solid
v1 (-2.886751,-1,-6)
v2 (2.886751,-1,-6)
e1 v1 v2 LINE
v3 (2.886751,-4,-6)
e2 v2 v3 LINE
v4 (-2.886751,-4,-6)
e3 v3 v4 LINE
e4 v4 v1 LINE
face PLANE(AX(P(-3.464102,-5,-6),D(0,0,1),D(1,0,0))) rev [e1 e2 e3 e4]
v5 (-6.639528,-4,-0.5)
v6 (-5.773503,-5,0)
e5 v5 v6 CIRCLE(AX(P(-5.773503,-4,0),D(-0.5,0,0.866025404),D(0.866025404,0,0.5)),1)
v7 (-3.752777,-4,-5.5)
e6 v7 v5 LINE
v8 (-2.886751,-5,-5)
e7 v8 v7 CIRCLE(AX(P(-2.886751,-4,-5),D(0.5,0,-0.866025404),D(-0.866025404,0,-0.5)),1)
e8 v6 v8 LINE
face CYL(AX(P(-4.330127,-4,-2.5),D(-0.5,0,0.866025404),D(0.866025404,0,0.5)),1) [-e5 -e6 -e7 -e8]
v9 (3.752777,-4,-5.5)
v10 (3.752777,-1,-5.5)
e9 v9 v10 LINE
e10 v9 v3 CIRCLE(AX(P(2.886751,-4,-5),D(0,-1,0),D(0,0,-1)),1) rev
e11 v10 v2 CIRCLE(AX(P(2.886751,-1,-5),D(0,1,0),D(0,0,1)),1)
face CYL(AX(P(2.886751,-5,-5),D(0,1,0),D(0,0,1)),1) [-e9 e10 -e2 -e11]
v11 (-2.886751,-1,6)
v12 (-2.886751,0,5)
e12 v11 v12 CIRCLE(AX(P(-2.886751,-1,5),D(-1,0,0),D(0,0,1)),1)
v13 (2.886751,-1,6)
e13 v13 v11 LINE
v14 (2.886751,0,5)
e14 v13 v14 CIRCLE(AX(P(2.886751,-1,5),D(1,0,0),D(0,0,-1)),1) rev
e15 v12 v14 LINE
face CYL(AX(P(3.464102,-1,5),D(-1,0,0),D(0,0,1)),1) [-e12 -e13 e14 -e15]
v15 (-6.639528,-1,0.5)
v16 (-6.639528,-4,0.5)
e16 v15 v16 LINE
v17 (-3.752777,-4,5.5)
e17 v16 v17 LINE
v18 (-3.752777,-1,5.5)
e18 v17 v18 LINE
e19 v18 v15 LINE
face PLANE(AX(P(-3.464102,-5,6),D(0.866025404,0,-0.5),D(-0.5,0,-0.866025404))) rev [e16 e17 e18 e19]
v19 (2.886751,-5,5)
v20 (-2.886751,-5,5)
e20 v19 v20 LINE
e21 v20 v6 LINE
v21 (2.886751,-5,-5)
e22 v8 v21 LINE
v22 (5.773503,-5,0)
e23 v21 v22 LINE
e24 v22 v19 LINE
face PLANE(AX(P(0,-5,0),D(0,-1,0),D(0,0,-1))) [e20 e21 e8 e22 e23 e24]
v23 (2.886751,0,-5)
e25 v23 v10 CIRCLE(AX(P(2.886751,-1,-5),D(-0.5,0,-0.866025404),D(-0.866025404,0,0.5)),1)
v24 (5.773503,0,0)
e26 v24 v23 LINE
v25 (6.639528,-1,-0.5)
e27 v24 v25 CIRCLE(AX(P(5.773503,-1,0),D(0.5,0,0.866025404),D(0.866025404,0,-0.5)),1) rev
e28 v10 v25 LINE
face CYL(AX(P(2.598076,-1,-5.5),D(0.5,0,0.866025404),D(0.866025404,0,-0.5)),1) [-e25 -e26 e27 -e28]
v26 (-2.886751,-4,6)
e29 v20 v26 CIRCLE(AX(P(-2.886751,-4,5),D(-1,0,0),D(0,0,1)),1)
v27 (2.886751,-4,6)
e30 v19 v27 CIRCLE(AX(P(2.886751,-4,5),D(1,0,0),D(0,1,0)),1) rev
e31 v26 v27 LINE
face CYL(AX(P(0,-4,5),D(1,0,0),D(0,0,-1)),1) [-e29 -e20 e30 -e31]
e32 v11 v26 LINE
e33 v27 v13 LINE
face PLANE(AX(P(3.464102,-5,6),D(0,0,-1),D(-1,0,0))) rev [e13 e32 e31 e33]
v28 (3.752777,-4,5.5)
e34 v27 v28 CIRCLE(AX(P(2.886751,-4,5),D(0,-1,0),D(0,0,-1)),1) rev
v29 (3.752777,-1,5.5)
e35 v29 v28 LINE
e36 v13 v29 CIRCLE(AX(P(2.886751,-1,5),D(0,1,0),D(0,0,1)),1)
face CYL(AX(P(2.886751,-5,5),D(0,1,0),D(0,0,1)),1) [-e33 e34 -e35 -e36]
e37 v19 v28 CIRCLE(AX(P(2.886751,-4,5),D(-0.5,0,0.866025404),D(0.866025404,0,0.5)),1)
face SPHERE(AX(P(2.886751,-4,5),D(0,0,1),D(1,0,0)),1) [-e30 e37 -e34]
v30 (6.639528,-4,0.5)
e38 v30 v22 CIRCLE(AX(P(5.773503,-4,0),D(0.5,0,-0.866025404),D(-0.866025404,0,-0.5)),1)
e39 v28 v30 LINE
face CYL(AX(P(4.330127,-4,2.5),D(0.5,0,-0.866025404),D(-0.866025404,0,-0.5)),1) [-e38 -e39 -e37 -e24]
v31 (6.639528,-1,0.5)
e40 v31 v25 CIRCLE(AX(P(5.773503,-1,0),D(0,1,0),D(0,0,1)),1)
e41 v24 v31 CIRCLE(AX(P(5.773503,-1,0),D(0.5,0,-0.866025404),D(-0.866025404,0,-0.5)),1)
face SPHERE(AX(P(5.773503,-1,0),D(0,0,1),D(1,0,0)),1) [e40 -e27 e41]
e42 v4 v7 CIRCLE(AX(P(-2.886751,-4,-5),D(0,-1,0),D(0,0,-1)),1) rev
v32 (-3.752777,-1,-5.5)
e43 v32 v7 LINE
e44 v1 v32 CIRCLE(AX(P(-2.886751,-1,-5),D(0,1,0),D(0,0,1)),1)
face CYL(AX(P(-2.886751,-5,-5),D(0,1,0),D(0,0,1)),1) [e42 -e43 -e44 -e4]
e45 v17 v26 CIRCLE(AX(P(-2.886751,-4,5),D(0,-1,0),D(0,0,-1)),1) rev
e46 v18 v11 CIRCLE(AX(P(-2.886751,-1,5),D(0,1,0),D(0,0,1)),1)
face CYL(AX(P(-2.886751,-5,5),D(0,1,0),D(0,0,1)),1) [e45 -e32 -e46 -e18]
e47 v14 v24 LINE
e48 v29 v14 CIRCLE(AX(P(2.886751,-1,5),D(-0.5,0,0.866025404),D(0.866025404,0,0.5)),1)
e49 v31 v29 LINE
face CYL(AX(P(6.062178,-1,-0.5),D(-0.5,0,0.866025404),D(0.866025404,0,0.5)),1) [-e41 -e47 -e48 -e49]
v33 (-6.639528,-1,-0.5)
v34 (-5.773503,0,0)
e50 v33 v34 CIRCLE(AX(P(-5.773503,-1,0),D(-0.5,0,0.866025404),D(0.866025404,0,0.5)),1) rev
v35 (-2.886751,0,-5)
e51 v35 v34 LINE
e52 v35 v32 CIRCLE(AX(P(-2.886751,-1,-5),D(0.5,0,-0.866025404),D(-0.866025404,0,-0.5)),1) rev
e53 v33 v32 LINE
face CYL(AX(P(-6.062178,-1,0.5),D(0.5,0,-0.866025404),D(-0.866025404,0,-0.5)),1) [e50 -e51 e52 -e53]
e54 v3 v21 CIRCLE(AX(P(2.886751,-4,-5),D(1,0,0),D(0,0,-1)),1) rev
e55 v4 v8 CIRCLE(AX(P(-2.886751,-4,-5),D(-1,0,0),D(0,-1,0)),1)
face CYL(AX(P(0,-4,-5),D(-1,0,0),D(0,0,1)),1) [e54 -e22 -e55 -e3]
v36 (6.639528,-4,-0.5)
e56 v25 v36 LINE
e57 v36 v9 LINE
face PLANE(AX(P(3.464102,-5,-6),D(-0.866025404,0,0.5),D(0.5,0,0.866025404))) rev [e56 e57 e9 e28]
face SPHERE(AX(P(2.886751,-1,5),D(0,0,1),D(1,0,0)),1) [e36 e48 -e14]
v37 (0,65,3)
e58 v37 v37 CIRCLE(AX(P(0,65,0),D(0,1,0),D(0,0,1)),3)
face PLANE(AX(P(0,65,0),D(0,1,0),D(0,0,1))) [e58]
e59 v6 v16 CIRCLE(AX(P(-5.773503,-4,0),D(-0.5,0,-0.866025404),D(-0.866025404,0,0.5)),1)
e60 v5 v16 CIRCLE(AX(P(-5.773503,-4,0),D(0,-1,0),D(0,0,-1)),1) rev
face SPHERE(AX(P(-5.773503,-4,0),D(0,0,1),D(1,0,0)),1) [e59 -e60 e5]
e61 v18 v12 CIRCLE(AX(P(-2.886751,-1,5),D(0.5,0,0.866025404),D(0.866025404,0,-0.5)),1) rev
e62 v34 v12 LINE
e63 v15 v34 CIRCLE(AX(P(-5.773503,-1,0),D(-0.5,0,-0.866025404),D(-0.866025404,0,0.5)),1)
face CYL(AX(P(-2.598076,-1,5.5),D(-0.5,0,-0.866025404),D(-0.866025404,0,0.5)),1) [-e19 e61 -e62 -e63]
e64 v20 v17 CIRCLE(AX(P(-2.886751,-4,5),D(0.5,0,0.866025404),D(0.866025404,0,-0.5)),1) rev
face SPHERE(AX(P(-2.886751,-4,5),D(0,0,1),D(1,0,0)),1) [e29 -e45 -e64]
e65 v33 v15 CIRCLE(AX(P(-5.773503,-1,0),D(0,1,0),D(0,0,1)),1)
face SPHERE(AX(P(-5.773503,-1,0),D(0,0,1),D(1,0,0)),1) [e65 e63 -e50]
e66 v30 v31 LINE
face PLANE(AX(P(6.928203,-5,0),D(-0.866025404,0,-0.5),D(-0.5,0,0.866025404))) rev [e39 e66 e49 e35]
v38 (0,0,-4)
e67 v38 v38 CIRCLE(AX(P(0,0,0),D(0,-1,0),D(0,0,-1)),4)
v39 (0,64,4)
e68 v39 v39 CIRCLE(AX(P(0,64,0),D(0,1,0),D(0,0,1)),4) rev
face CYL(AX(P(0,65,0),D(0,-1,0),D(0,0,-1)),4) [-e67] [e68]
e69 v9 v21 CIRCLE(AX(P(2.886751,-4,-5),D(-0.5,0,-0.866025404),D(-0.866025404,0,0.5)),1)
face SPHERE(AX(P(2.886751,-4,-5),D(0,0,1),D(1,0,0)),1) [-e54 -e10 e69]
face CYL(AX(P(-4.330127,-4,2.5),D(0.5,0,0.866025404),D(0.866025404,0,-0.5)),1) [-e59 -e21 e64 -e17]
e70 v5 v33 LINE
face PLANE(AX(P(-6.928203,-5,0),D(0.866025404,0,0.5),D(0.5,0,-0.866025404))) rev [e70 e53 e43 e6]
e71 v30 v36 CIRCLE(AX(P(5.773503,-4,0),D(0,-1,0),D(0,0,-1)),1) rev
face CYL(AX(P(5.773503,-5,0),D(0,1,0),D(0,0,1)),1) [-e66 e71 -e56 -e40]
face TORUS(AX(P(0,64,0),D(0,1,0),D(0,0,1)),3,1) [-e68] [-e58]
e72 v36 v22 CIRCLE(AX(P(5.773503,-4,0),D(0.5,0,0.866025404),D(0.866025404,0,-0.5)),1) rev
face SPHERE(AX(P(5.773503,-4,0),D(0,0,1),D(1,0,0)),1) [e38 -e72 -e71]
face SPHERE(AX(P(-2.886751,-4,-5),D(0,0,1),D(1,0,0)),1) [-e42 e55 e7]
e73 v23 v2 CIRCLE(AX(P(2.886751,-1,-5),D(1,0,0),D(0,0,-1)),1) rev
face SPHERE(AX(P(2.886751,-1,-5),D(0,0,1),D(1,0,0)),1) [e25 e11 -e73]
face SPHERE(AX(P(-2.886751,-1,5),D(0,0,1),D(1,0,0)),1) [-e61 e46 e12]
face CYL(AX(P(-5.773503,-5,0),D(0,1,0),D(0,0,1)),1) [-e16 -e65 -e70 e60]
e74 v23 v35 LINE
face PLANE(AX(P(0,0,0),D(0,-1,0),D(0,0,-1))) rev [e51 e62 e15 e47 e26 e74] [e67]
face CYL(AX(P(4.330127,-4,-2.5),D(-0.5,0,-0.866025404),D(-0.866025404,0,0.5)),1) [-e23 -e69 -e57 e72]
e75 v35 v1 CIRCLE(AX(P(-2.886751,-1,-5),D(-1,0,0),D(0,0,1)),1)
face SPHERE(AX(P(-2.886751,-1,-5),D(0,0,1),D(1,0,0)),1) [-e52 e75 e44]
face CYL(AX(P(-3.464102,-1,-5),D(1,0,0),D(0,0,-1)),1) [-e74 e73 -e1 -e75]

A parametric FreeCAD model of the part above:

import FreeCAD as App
import Part
import Sketcher

V = App.Vector
Q = App.Units.Quantity


def edges_at(feature, points):
    """Names of the edges that pass closest to the given points."""
    edges = feature.Shape.Edges
    near = lambda p: min(range(len(edges)), key=lambda i: edges[i].distToShape(Part.Vertex(*p))[0])
    return sorted({f"Edge{near(p) + 1}" for p in points})

doc = App.newDocument("Part")
body = doc.addObject("PartDesign::Body", "Body")

sketch1 = body.newObject("Sketcher::SketchObject", "Sketch")
sketch1.AttachmentSupport = (doc.getObject("XZ_Plane"), [""])
sketch1.MapMode = "FlatFace"
sketch1.addGeometry(Part.Circle(V(0, 0, 0), V(0, 0, 1), 4), False)
sketch1.addConstraint(Sketcher.Constraint("Coincident", 0, 3, -1, 1))
sketch1.addConstraint(Sketcher.Constraint("Diameter", 0, Q("8 mm")))
pad1 = body.newObject("PartDesign::Pad", "Pad")
pad1.Profile = sketch1
pad1.Length = 65
pad1.Reversed = True

sketch2 = body.newObject("Sketcher::SketchObject", "Sketch001")
sketch2.AttachmentSupport = (doc.getObject("XZ_Plane"), [""])
sketch2.MapMode = "FlatFace"
sketch2.addGeometry(Part.LineSegment(V(-3.464102, -6, 0), V(3.464102, -6, 0)), False)
sketch2.addGeometry(Part.LineSegment(V(3.464102, -6, 0), V(6.928203, 0, 0)), False)
sketch2.addGeometry(Part.LineSegment(V(6.928203, 0, 0), V(3.464102, 6, 0)), False)
sketch2.addGeometry(Part.LineSegment(V(3.464102, 6, 0), V(-3.464102, 6, 0)), False)
sketch2.addGeometry(Part.LineSegment(V(-3.464102, 6, 0), V(-6.928203, 0, 0)), False)
sketch2.addGeometry(Part.LineSegment(V(-6.928203, 0, 0), V(-3.464102, -6, 0)), False)
sketch2.addConstraint(Sketcher.Constraint("Coincident", 0, 2, 1, 1))
sketch2.addConstraint(Sketcher.Constraint("Coincident", 1, 2, 2, 1))
sketch2.addConstraint(Sketcher.Constraint("Coincident", 2, 2, 3, 1))
sketch2.addConstraint(Sketcher.Constraint("Coincident", 3, 2, 4, 1))
sketch2.addConstraint(Sketcher.Constraint("Coincident", 4, 2, 5, 1))
sketch2.addConstraint(Sketcher.Constraint("Coincident", 5, 2, 0, 1))
sketch2.addConstraint(Sketcher.Constraint("Horizontal", 0))
sketch2.addConstraint(Sketcher.Constraint("Horizontal", 3))
sketch2.addConstraint(Sketcher.Constraint("Symmetric", 0, 2, 3, 2, -1, 1))
sketch2.addConstraint(Sketcher.Constraint("Symmetric", 1, 2, 4, 2, -1, 1))
sketch2.addConstraint(Sketcher.Constraint("PointOnObject", 1, 2, -1))
sketch2.addConstraint(Sketcher.Constraint("Parallel", 2, 5))
sketch2.addConstraint(Sketcher.Constraint("Vertical", 0, 2, 2, 2))
sketch2.addConstraint(Sketcher.Constraint("Angle", 1, Q("60 deg")))
sketch2.addConstraint(Sketcher.Constraint("DistanceY", 0, 2, -1, 1, Q("6 mm")))
sketch2.addConstraint(Sketcher.Constraint("DistanceX", -1, 1, 0, 2, Q("3.464102 mm")))
pad2 = body.newObject("PartDesign::Pad", "Pad001")
pad2.Profile = sketch2
pad2.Length = 5
doc.recompute()

fillet = body.newObject("PartDesign::Fillet", "Fillet")
fillet.Base = (pad2, edges_at(pad2, [(0, 65, -4)]))
fillet.Radius = 1
doc.recompute()

fillet2 = body.newObject("PartDesign::Fillet", "Fillet001")
fillet2.Base = (fillet, edges_at(fillet, [
    (-5.196, 0, -3),
    (-6.928, -2.5, 0),
    (0, 0, -6),
    (-3.464, -2.5, -6),
    (5.196, 0, -3),
    (3.464, -2.5, -6),
    (5.196, 0, 3),
    (6.928, -2.5, 0),
    (0, 0, 6),
    (3.464, -2.5, 6),
    (-5.196, 0, 3),
    (-3.464, -2.5, 6),
    (-5.196, -5, -3),
    (0, -5, -6),
    (5.196, -5, -3),
    (5.196, -5, 3),
    (0, -5, 6),
    (-5.196, -5, 3),
]))
fillet2.Radius = 1

doc.recompute()
